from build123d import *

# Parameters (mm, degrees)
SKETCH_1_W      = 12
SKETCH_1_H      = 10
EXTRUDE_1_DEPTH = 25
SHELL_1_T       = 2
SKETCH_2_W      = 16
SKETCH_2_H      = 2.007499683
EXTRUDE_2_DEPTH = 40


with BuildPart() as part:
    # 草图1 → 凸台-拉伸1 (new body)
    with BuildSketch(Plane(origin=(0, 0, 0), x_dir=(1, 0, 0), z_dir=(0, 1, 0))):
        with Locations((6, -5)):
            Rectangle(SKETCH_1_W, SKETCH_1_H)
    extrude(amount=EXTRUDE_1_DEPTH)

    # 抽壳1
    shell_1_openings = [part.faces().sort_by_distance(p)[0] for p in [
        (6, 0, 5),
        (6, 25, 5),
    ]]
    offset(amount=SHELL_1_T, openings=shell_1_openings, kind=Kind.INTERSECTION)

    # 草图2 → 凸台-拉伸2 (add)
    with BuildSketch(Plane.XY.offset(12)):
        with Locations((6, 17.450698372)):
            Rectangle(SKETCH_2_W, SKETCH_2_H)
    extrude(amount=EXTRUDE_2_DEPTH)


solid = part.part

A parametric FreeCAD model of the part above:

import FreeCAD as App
import Part
import Sketcher
from FreeCAD import Vector


def faces_at(feature, points):
    """Names of the faces that lie closest to the given points."""
    faces = feature.Shape.Faces
    near = lambda p: min(range(len(faces)), key=lambda i: faces[i].distToShape(Part.Vertex(*p))[0])
    return sorted({f"Face{near(p) + 1}" for p in points})


def add_polygon(sketch, points):
    """Adds a closed chain of lines whose ends are joined by coincident constraints."""
    first, n = sketch.GeometryCount, len(points)
    for a, b in zip(points, points[1:] + points[:1]):
        sketch.addGeometry(Part.LineSegment(App.Vector(*a, 0), App.Vector(*b, 0)), False)
    for i in range(n):
        sketch.addConstraint(Sketcher.Constraint("Coincident", first + i, 2, first + (i + 1) % n, 1))

doc = App.newDocument("Part")
body = doc.addObject("PartDesign::Body", "Body")

# Sketch on XZ plane
sketch1 = body.newObject("Sketcher::SketchObject", "Sketch")
sketch1.AttachmentSupport = (doc.getObject("XZ_Plane"), [""])
sketch1.MapMode = "FlatFace"
add_polygon(sketch1, [(0, 0), (0, 10), (12, 10), (12, 0)])  # lines 0-3
sketch1.addConstraint([
    Sketcher.Constraint("Vertical", 0),
    Sketcher.Constraint("Horizontal", 1),
    Sketcher.Constraint("Vertical", 2),
    Sketcher.Constraint("Horizontal", 3),
    Sketcher.Constraint("Coincident", 3, 2, -1, 1),
    Sketcher.Constraint("DistanceX", 1, 1, 1, 2, 12.0),
    Sketcher.Constraint("DistanceY", 0, 1, 0, 2, 10.0),
])
pad1 = body.newObject("PartDesign::Pad", "Pad")
pad1.Profile = sketch1
pad1.Length = 25
pad1.Reversed = True
doc.recompute()

thickness = body.newObject("PartDesign::Thickness", "Thickness")
thickness.Base = (pad1, faces_at(pad1, [(6, 0, 5), (6, 25, 5)]))
thickness.Value = 2
thickness.Reversed = False
thickness.Join = "Intersection"

# Sketch on XY plane
sketch2 = body.newObject("Sketcher::SketchObject", "Sketch001")
sketch2.AttachmentSupport = (doc.getObject("XY_Plane"), [""])
sketch2.MapMode = "FlatFace"
sketch2.AttachmentOffset = App.Placement(Vector(0, 0, 12), App.Rotation())
add_polygon(sketch2, [(-2, 18.5), (-2, 16.4), (14, 16.4), (14, 18.5)])  # lines 0-3
sketch2.addConstraint([
    Sketcher.Constraint("Vertical", 0),
    Sketcher.Constraint("Horizontal", 1),
    Sketcher.Constraint("Vertical", 2),
    Sketcher.Constraint("Horizontal", 3),
    Sketcher.Constraint("DistanceX", 1, 1, 1, 2, 16.0),
    Sketcher.Constraint("DistanceX", 0, 2, -1, 1, 2.0),
    Sketcher.Constraint("DistanceY", 0, 2, 0, 1, 2.0075),
    Sketcher.Constraint("DistanceY", -1, 1, 0, 2, 16.446949),
])
pad2 = body.newObject("PartDesign::Pad", "Pad001")
pad2.Profile = sketch2
pad2.Length = 40

doc.recompute()
